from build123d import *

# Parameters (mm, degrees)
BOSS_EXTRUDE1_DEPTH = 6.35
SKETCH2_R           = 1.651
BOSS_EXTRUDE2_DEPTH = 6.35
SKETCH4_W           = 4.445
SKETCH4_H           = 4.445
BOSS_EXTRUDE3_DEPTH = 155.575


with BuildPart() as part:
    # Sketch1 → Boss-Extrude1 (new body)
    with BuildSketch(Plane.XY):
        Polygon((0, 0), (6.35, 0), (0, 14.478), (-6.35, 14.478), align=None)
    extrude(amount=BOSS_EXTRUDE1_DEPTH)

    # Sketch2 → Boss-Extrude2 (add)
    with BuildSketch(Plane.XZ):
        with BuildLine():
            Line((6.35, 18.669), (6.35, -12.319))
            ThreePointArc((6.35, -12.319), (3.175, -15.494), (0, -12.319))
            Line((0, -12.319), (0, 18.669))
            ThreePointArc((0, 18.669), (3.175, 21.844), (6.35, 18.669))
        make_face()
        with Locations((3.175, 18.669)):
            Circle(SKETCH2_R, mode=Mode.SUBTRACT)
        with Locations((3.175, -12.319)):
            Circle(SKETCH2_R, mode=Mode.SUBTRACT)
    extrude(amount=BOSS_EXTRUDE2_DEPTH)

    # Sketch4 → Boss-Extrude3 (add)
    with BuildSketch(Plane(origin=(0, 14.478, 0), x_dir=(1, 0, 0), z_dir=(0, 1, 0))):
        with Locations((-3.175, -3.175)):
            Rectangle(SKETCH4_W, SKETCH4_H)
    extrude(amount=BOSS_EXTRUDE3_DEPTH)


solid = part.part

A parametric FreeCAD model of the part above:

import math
import FreeCAD as App
import Part
import Sketcher

V = App.Vector
Q = App.Units.Quantity

doc = App.newDocument("Part")
body = doc.addObject("PartDesign::Body", "Body")

# Sketch on XY plane
sketch1 = body.newObject("Sketcher::SketchObject", "Sketch")
sketch1.AttachmentSupport = (doc.getObject("XY_Plane"), [""])
sketch1.MapMode = "FlatFace"
sketch1.addGeometry([
    Part.LineSegment(V(0, 0, 0), V(6, 0, 0)),
    Part.LineSegment(V(6, 0, 0), V(0, 14, 0)),
    Part.LineSegment(V(0, 14, 0), V(-6, 14, 0)),
    Part.LineSegment(V(-6, 14, 0), V(0, 0, 0)),
], False)
sketch1.addConstraint([
    Sketcher.Constraint("Coincident", 0, 2, 1, 1),
    Sketcher.Constraint("Coincident", 1, 2, 2, 1),
    Sketcher.Constraint("Coincident", 2, 2, 3, 1),
    Sketcher.Constraint("Coincident", 3, 2, 0, 1),
    Sketcher.Constraint("Horizontal", 0),
    Sketcher.Constraint("Horizontal", 2),
    Sketcher.Constraint("Coincident", 3, 2, -1, 1),
    Sketcher.Constraint("PointOnObject", 1, 2, -2),
    Sketcher.Constraint("Parallel", 1, 3),
    Sketcher.Constraint("DistanceX", 0, 1, 0, 2, Q("0.25 in")),
    Sketcher.Constraint("DistanceY", -1, 1, 1, 2, Q("0.57 in")),
])
pad1 = body.newObject("PartDesign::Pad", "Pad")
pad1.Profile = sketch1
pad1.Length = Q("0.25 in")

# Sketch on XZ plane
sketch2 = body.newObject("Sketcher::SketchObject", "Sketch001")
sketch2.AttachmentSupport = (doc.getObject("XZ_Plane"), [""])
sketch2.MapMode = "FlatFace"
sketch2.addGeometry([
    Part.LineSegment(V(6.3, -12.3, 0), V(6.3, 18.7, 0)),  # 0
    Part.ArcOfCircle(Part.Circle(V(3.2, 18.7, 0), V(0, 0, 1), 3.2), math.radians(0), math.radians(180)),  # 1
    Part.LineSegment(V(0, 18.7, 0), V(0, -12.3, 0)),  # 2
    Part.ArcOfCircle(Part.Circle(V(3.2, -12.3, 0), V(0, 0, 1), 3.2), math.radians(180), math.radians(360)),  # 3
    Part.Circle(V(3.2, -12.3, 0), V(0, 0, 1), 1.7),  # 4
    Part.Circle(V(3.2, 18.7, 0), V(0, 0, 1), 1.7),  # 5
], False)
sketch2.addConstraint([
    Sketcher.Constraint("Tangent", 0, 2, 1, 1),
    Sketcher.Constraint("Tangent", 1, 2, 2, 1),
    Sketcher.Constraint("Tangent", 2, 2, 3, 1),
    Sketcher.Constraint("Tangent", 3, 2, 0, 1),
    Sketcher.Constraint("Vertical", 0),
    Sketcher.Constraint("Vertical", 2),
    Sketcher.Constraint("Coincident", 4, 3, 3, 3),
    Sketcher.Constraint("Coincident", 5, 3, 1, 3),
    Sketcher.Constraint("Equal", 4, 5),
    Sketcher.Constraint("PointOnObject", 1, 2, -2),
    Sketcher.Constraint("Diameter", 4, Q("0.13 in")),
    Sketcher.Constraint("Radius", 1, Q("0.125 in")),
    Sketcher.Constraint("DistanceY", 0, 1, 0, 2, Q("1.22 in")),
    Sketcher.Constraint("DistanceY", -1, 1, 1, 3, Q("0.735 in")),
])
pad2 = body.newObject("PartDesign::Pad", "Pad001")
pad2.Profile = sketch2
pad2.Length = Q("0.25 in")

# Sketch on XZ plane
sketch3 = body.newObject("Sketcher::SketchObject", "Sketch002")
sketch3.AttachmentSupport = (doc.getObject("XZ_Plane"), [""])
sketch3.MapMode = "FlatFace"
sketch3.AttachmentOffset = App.Placement(V(0, 0, -0.57 * 25.4), App.Rotation())
sketch3.addGeometry([
    Part.LineSegment(V(-5.4, 1, 0), V(-5.4, 5.4, 0)),
    Part.LineSegment(V(-5.4, 5.4, 0), V(-1, 5.4, 0)),
    Part.LineSegment(V(-1, 5.4, 0), V(-1, 1, 0)),
    Part.LineSegment(V(-1, 1, 0), V(-5.4, 1, 0)),
], False)
sketch3.addConstraint([
    Sketcher.Constraint("Coincident", 0, 2, 1, 1),
    Sketcher.Constraint("Coincident", 1, 2, 2, 1),
    Sketcher.Constraint("Coincident", 2, 2, 3, 1),
    Sketcher.Constraint("Coincident", 3, 2, 0, 1),
    Sketcher.Constraint("Vertical", 0),
    Sketcher.Constraint("Horizontal", 1),
    Sketcher.Constraint("Vertical", 2),
    Sketcher.Constraint("Horizontal", 3),
    Sketcher.Constraint("Equal", 3, 0),
    Sketcher.Constraint("DistanceX", 1, 1, 1, 2, Q("0.175 in")),
    Sketcher.Constraint("DistanceX", 0, 2, -1, 1, Q("0.2125 in")),
    Sketcher.Constraint("DistanceY", -1, 1, 0, 2, Q("0.2125 in")),
])
pad3 = body.newObject("PartDesign::Pad", "Pad002")
pad3.Profile = sketch3
pad3.Length = Q("6.125 in")
pad3.Reversed = True

doc.recompute()
